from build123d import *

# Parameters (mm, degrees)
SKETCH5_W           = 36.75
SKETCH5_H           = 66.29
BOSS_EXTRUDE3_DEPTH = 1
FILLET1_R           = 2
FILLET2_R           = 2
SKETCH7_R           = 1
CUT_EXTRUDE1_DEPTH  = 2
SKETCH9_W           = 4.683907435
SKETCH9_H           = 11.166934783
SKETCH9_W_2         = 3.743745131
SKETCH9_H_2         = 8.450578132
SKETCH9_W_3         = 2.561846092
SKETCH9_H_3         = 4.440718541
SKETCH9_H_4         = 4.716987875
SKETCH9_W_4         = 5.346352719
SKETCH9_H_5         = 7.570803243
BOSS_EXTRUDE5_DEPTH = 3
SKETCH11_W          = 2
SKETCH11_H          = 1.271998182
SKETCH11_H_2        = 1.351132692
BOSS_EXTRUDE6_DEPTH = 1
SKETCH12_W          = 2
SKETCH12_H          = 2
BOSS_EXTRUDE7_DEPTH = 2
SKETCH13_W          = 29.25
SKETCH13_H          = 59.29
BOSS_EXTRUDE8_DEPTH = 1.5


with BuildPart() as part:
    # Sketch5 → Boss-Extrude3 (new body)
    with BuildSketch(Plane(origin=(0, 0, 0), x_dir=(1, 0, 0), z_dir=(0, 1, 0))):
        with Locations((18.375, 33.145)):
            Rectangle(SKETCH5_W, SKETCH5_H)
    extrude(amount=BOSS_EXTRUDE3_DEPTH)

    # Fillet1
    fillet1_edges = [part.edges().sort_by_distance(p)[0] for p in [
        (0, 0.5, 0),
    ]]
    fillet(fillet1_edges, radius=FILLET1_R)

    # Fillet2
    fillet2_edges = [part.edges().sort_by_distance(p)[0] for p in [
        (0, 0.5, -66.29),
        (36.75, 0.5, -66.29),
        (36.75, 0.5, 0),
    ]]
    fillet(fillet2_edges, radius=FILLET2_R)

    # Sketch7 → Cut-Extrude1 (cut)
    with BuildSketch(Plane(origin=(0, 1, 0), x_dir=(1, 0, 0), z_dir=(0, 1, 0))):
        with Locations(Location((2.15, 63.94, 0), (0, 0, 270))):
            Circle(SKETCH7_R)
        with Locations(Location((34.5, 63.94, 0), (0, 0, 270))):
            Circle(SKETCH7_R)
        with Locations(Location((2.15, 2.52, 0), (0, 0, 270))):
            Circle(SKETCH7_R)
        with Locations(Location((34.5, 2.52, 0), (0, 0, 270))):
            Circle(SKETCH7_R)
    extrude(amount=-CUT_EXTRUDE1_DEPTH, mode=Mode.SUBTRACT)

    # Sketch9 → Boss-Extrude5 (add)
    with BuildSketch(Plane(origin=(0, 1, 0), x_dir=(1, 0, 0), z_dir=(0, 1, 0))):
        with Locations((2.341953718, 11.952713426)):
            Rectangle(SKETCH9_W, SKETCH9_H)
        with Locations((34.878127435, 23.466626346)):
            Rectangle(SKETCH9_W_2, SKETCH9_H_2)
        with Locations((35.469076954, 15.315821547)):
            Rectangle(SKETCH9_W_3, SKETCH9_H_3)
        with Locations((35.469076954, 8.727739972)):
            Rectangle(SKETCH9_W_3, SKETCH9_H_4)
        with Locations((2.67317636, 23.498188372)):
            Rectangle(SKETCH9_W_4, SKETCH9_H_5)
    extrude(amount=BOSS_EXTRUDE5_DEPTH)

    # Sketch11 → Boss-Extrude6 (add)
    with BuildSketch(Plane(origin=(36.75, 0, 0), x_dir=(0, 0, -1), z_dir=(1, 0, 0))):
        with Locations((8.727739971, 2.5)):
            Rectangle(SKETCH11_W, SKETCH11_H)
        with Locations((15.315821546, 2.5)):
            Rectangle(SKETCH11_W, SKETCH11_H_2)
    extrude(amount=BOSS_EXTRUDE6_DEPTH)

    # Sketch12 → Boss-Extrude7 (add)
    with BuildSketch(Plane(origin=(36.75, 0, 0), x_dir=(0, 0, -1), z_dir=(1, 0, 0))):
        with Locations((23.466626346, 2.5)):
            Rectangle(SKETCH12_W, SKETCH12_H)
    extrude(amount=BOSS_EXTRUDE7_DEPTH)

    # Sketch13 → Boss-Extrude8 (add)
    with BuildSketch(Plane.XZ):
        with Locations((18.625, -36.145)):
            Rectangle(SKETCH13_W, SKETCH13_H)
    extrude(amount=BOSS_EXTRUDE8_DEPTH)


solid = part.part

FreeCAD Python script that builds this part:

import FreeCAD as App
import Part
import Sketcher

V = App.Vector


def edges_at(feature, points):
    """Names of the edges that pass closest to the given points."""
    edges = feature.Shape.Edges
    near = lambda p: min(range(len(edges)), key=lambda i: edges[i].distToShape(Part.Vertex(*p))[0])
    return sorted({f"Edge{near(p) + 1}" for p in points})

doc = App.newDocument("Part")
body = doc.addObject("PartDesign::Body", "Body")

# Sketch on XZ plane
sketch1 = body.newObject("Sketcher::SketchObject", "Sketch")
sketch1.AttachmentSupport = (doc.getObject("XZ_Plane"), [""])
sketch1.MapMode = "FlatFace"
sketch1.addGeometry([
    Part.LineSegment(V(0, -66, 0), V(0, 0, 0)),
    Part.LineSegment(V(0, 0, 0), V(37, 0, 0)),
    Part.LineSegment(V(37, 0, 0), V(37, -66, 0)),
    Part.LineSegment(V(37, -66, 0), V(0, -66, 0)),
], False)
sketch1.addConstraint([
    Sketcher.Constraint("Coincident", 0, 2, 1, 1),
    Sketcher.Constraint("Coincident", 1, 2, 2, 1),
    Sketcher.Constraint("Coincident", 2, 2, 3, 1),
    Sketcher.Constraint("Coincident", 3, 2, 0, 1),
    Sketcher.Constraint("Vertical", 0),
    Sketcher.Constraint("Horizontal", 1),
    Sketcher.Constraint("Vertical", 2),
    Sketcher.Constraint("Horizontal", 3),
    Sketcher.Constraint("Coincident", 0, 2, -1, 1),
    Sketcher.Constraint("DistanceX", 1, 1, 1, 2, 36.75),
    Sketcher.Constraint("DistanceY", 0, 1, 0, 2, 66.29),
])
pad1 = body.newObject("PartDesign::Pad", "Pad")
pad1.Profile = sketch1
pad1.Length = 1
pad1.Reversed = True
doc.recompute()

fillet = body.newObject("PartDesign::Fillet", "Fillet")
fillet.Base = (pad1, edges_at(pad1, [(0, 0.5, 0)]))
fillet.Radius = 2
doc.recompute()

fillet2 = body.newObject("PartDesign::Fillet", "Fillet001")
fillet2.Base = (fillet, edges_at(fillet, [(0, 0.5, -66.29), (36.75, 0.5, -66.29), (36.75, 0.5, 0)]))
fillet2.Radius = 2

# Sketch on XZ plane
sketch2 = body.newObject("Sketcher::SketchObject", "Sketch001")
sketch2.AttachmentSupport = (doc.getObject("XZ_Plane"), [""])
sketch2.MapMode = "FlatFace"
sketch2.AttachmentOffset = App.Placement(V(0, 0, -1), App.Rotation())
sketch2.addGeometry([
    Part.Circle(V(2.1, -63.9, 0), V(0, 0, 1), 1),
    Part.Circle(V(34.5, -63.9, 0), V(0, 0, 1), 1),
    Part.Circle(V(2.1, -2.5, 0), V(0, 0, 1), 1),
    Part.Circle(V(34.5, -2.5, 0), V(0, 0, 1), 1),
], False)
sketch2.addConstraint([
    Sketcher.Constraint("Equal", 0, 1),
    Sketcher.Constraint("Equal", 1, 2),
    Sketcher.Constraint("Equal", 2, 3),
    Sketcher.Constraint("Horizontal", 0, 3, 1, 3),
    Sketcher.Constraint("Horizontal", 2, 3, 3, 3),
    Sketcher.Constraint("Vertical", 0, 3, 2, 3),
    Sketcher.Constraint("Vertical", 1, 3, 3, 3),
    Sketcher.Constraint("Diameter", 0, 2.0),
    Sketcher.Constraint("DistanceX", -1, 1, 1, 3, 34.5),
    Sketcher.Constraint("DistanceX", -1, 1, 0, 3, 2.15),
    Sketcher.Constraint("DistanceY", 0, 3, -1, 1, 63.94),
    Sketcher.Constraint("DistanceY", 2, 3, -1, 1, 2.52),
])
pocket1 = body.newObject("PartDesign::Pocket", "Pocket")
pocket1.Profile = sketch2
pocket1.Length = 2
pocket1.Reversed = True

# Sketch on XZ plane
sketch3 = body.newObject("Sketcher::SketchObject", "Sketch002")
sketch3.AttachmentSupport = (doc.getObject("XZ_Plane"), [""])
sketch3.MapMode = "FlatFace"
sketch3.AttachmentOffset = App.Placement(V(0, 0, -1), App.Rotation())
sketch3.addGeometry([
    Part.LineSegment(V(0, -17.5, 0), V(0, -6.4, 0)),  # 0
    Part.LineSegment(V(0, -6.4, 0), V(4.7, -6.4, 0)),  # 1
    Part.LineSegment(V(4.7, -6.4, 0), V(4.7, -17.5, 0)),  # 2
    Part.LineSegment(V(4.7, -17.5, 0), V(0, -17.5, 0)),  # 3
    Part.LineSegment(V(33, -27.7, 0), V(33, -19.2, 0)),  # 4
    Part.LineSegment(V(33, -19.2, 0), V(36.8, -19.2, 0)),  # 5
    Part.LineSegment(V(36.8, -19.2, 0), V(36.8, -27.7, 0)),  # 6
    Part.LineSegment(V(36.8, -27.7, 0), V(33, -27.7, 0)),  # 7
    Part.LineSegment(V(34.2, -17.5, 0), V(34.2, -13.1, 0)),  # 8
    Part.LineSegment(V(34.2, -13.1, 0), V(36.8, -13.1, 0)),  # 9
    Part.LineSegment(V(36.8, -13.1, 0), V(36.8, -17.5, 0)),  # 10
    Part.LineSegment(V(36.8, -17.5, 0), V(34.2, -17.5, 0)),  # 11
    Part.LineSegment(V(34.2, -11.1, 0), V(34.2, -6.4, 0)),  # 12
    Part.LineSegment(V(34.2, -6.4, 0), V(36.8, -6.4, 0)),  # 13
    Part.LineSegment(V(36.8, -6.4, 0), V(36.8, -11.1, 0)),  # 14
    Part.LineSegment(V(36.8, -11.1, 0), V(34.2, -11.1, 0)),  # 15
    Part.LineSegment(V(0, -27.3, 0), V(0, -19.7, 0)),  # 16
    Part.LineSegment(V(0, -19.7, 0), V(5.3, -19.7, 0)),  # 17
    Part.LineSegment(V(5.3, -19.7, 0), V(5.3, -27.3, 0)),  # 18
    Part.LineSegment(V(5.3, -27.3, 0), V(0, -27.3, 0)),  # 19
], False)
sketch3.addConstraint([
    Sketcher.Constraint("Coincident", 0, 2, 1, 1),
    Sketcher.Constraint("Coincident", 1, 2, 2, 1),
    Sketcher.Constraint("Coincident", 2, 2, 3, 1),
    Sketcher.Constraint("Coincident", 3, 2, 0, 1),
    Sketcher.Constraint("Coincident", 4, 2, 5, 1),
    Sketcher.Constraint("Coincident", 5, 2, 6, 1),
    Sketcher.Constraint("Coincident", 6, 2, 7, 1),
    Sketcher.Constraint("Coincident", 7, 2, 4, 1),
    Sketcher.Constraint("Coincident", 8, 2, 9, 1),
    Sketcher.Constraint("Coincident", 9, 2, 10, 1),
    Sketcher.Constraint("Coincident", 10, 2, 11, 1),
    Sketcher.Constraint("Coincident", 11, 2, 8, 1),
    Sketcher.Constraint("Coincident", 12, 2, 13, 1),
    Sketcher.Constraint("Coincident", 13, 2, 14, 1),
    Sketcher.Constraint("Coincident", 14, 2, 15, 1),
    Sketcher.Constraint("Coincident", 15, 2, 12, 1),
    Sketcher.Constraint("Coincident", 16, 2, 17, 1),
    Sketcher.Constraint("Coincident", 17, 2, 18, 1),
    Sketcher.Constraint("Coincident", 18, 2, 19, 1),
    Sketcher.Constraint("Coincident", 19, 2, 16, 1),
    Sketcher.Constraint("Vertical", 0),
    Sketcher.Constraint("Horizontal", 1),
    Sketcher.Constraint("Vertical", 2),
    Sketcher.Constraint("Horizontal", 3),
    Sketcher.Constraint("Vertical", 4),
    Sketcher.Constraint("Horizontal", 5),
    Sketcher.Constraint("Vertical", 6),
    Sketcher.Constraint("Horizontal", 7),
    Sketcher.Constraint("Vertical", 8),
    Sketcher.Constraint("Horizontal", 9),
    Sketcher.Constraint("Vertical", 10),
    Sketcher.Constraint("Horizontal", 11),
    Sketcher.Constraint("Vertical", 12),
    Sketcher.Constraint("Horizontal", 13),
    Sketcher.Constraint("Vertical", 14),
    Sketcher.Constraint("Horizontal", 15),
    Sketcher.Constraint("Vertical", 16),
    Sketcher.Constraint("Horizontal", 17),
    Sketcher.Constraint("Vertical", 18),
    Sketcher.Constraint("Horizontal", 19),
    Sketcher.Constraint("PointOnObject", 0, 2, -2),
    Sketcher.Constraint("PointOnObject", 16, 2, -2),
    Sketcher.Constraint("Horizontal", 3, 2, 10, 2),
    Sketcher.Constraint("Horizontal", 1, 2, 12, 2),
    Sketcher.Constraint("Vertical", 6, 2, 9, 2),
    Sketcher.Constraint("Vertical", 11, 2, 12, 2),
    Sketcher.Constraint("Vertical", 10, 2, 13, 2),
    Sketcher.Constraint("DistanceX", -1, 1, 5, 2, 36.75),
    Sketcher.Constraint("DistanceY", 4, 1, 4, 2, 8.450578),
    Sketcher.Constraint("DistanceY", 8, 1, 8, 2, 4.440719),
    Sketcher.Constraint("DistanceX", 4, 2, 8, 2, 1.181899),
    Sketcher.Constraint("DistanceX", 1, 1, 1, 2, 4.683907),
    Sketcher.Constraint("DistanceX", 5, 1, 5, 2, 3.743745),
    Sketcher.Constraint("DistanceX", 17, 1, 17, 2, 5.346353),
    Sketcher.Constraint("DistanceY", 0, 1, 0, 2, 11.166935),
    Sketcher.Constraint("DistanceY", 12, 1, 12, 2, 4.716988),
    Sketcher.Constraint("DistanceY", 16, 1, 16, 2, 7.570803),
    Sketcher.Constraint("DistanceY", 2, 2, -1, 1, 17.536181),
    Sketcher.Constraint("DistanceY", 18, 2, -1, 1, 27.28359),
    Sketcher.Constraint("DistanceY", 4, 2, 1, 2, 12.872091),
])
pad2 = body.newObject("PartDesign::Pad", "Pad001")
pad2.Profile = sketch3
pad2.Length = 3
pad2.Reversed = True

# Sketch on YZ plane
sketch4 = body.newObject("Sketcher::SketchObject", "Sketch003")
sketch4.AttachmentSupport = (doc.getObject("YZ_Plane"), [""])
sketch4.MapMode = "FlatFace"
sketch4.AttachmentOffset = App.Placement(V(0, 0, 36.75), App.Rotation())
sketch4.addGeometry([
    Part.LineSegment(V(3.1, -7.7, 0), V(1.9, -7.7, 0)),  # 0
    Part.LineSegment(V(1.9, -7.7, 0), V(1.9, -9.7, 0)),  # 1
    Part.LineSegment(V(1.9, -9.7, 0), V(3.1, -9.7, 0)),  # 2
    Part.LineSegment(V(3.1, -9.7, 0), V(3.1, -7.7, 0)),  # 3
    Part.LineSegment(V(3.2, -14.3, 0), V(1.8, -14.3, 0)),  # 4
    Part.LineSegment(V(1.8, -14.3, 0), V(1.8, -16.3, 0)),  # 5
    Part.LineSegment(V(1.8, -16.3, 0), V(3.2, -16.3, 0)),  # 6
    Part.LineSegment(V(3.2, -16.3, 0), V(3.2, -14.3, 0)),  # 7
], False)
sketch4.addConstraint([
    Sketcher.Constraint("Coincident", 0, 2, 1, 1),
    Sketcher.Constraint("Coincident", 1, 2, 2, 1),
    Sketcher.Constraint("Coincident", 2, 2, 3, 1),
    Sketcher.Constraint("Coincident", 3, 2, 0, 1),
    Sketcher.Constraint("Coincident", 4, 2, 5, 1),
    Sketcher.Constraint("Coincident", 5, 2, 6, 1),
    Sketcher.Constraint("Coincident", 6, 2, 7, 1),
    Sketcher.Constraint("Coincident", 7, 2, 4, 1),
    Sketcher.Constraint("Horizontal", 0),
    Sketcher.Constraint("Vertical", 1),
    Sketcher.Constraint("Horizontal", 2),
    Sketcher.Constraint("Vertical", 3),
    Sketcher.Constraint("Horizontal", 4),
    Sketcher.Constraint("Vertical", 5),
    Sketcher.Constraint("Horizontal", 6),
    Sketcher.Constraint("Vertical", 7),
    Sketcher.Constraint("Equal", 3, 5),
    Sketcher.Constraint("DistanceY", 1, 2, 1, 1, 2.0),
    Sketcher.Constraint("DistanceX", 0, 2, 0, 1, 1.271998),
    Sketcher.Constraint("DistanceX", -1, 1, 0, 2, 1.864001),
    Sketcher.Constraint("DistanceX", 4, 2, 4, 1, 1.351133),
    Sketcher.Constraint("DistanceY", 0, 2, -1, 1, 7.72774),
    Sketcher.Constraint("DistanceY", 4, 2, -1, 1, 14.315822),
    Sketcher.Constraint("DistanceX", -1, 1, 4, 2, 1.824434),
])
pad3 = body.newObject("PartDesign::Pad", "Pad002")
pad3.Profile = sketch4
pad3.Length = 1

# Sketch on YZ plane
sketch5 = body.newObject("Sketcher::SketchObject", "Sketch004")
sketch5.AttachmentSupport = (doc.getObject("YZ_Plane"), [""])
sketch5.MapMode = "FlatFace"
sketch5.AttachmentOffset = App.Placement(V(0, 0, 36.75), App.Rotation())
sketch5.addGeometry([
    Part.LineSegment(V(3.5, -22.5, 0), V(1.5, -22.5, 0)),
    Part.LineSegment(V(1.5, -22.5, 0), V(1.5, -24.5, 0)),
    Part.LineSegment(V(1.5, -24.5, 0), V(3.5, -24.5, 0)),
    Part.LineSegment(V(3.5, -24.5, 0), V(3.5, -22.5, 0)),
], False)
sketch5.addConstraint([
    Sketcher.Constraint("Coincident", 0, 2, 1, 1),
    Sketcher.Constraint("Coincident", 1, 2, 2, 1),
    Sketcher.Constraint("Coincident", 2, 2, 3, 1),
    Sketcher.Constraint("Coincident", 3, 2, 0, 1),
    Sketcher.Constraint("Horizontal", 0),
    Sketcher.Constraint("Vertical", 1),
    Sketcher.Constraint("Horizontal", 2),
    Sketcher.Constraint("Vertical", 3),
    Sketcher.Constraint("Equal", 2, 1),
    Sketcher.Constraint("DistanceX", 0, 2, 0, 1, 2.0),
    Sketcher.Constraint("DistanceX", -1, 1, 0, 2, 1.5),
    Sketcher.Constraint("DistanceY", 0, 2, -1, 1, 22.466626),
])
pad4 = body.newObject("PartDesign::Pad", "Pad003")
pad4.Profile = sketch5
pad4.Length = 2

# Sketch on XZ plane
sketch6 = body.newObject("Sketcher::SketchObject", "Sketch005")
sketch6.AttachmentSupport = (doc.getObject("XZ_Plane"), [""])
sketch6.MapMode = "FlatFace"
sketch6.addGeometry([
    Part.LineSegment(V(4, -6, 0), V(4, -66, 0)),
    Part.LineSegment(V(4, -66, 0), V(33, -66, 0)),
    Part.LineSegment(V(33, -66, 0), V(33, -6, 0)),
    Part.LineSegment(V(33, -6, 0), V(4, -6, 0)),
], False)
sketch6.addConstraint([
    Sketcher.Constraint("Coincident", 0, 2, 1, 1),
    Sketcher.Constraint("Coincident", 1, 2, 2, 1),
    Sketcher.Constraint("Coincident", 2, 2, 3, 1),
    Sketcher.Constraint("Coincident", 3, 2, 0, 1),
    Sketcher.Constraint("Vertical", 0),
    Sketcher.Constraint("Horizontal", 1),
    Sketcher.Constraint("Vertical", 2),
    Sketcher.Constraint("Horizontal", 3),
    Sketcher.Constraint("DistanceX", -1, 1, 0, 2, 4.0),
    Sketcher.Constraint("DistanceX", 1, 1, 1, 2, 29.25),
    Sketcher.Constraint("DistanceY", 0, 2, 0, 1, 59.29),
    Sketcher.Constraint("DistanceY", 2, 2, -1, 1, 6.5),
])
pad5 = body.newObject("PartDesign::Pad", "Pad004")
pad5.Profile = sketch6
pad5.Length = 1.5

doc.recompute()
